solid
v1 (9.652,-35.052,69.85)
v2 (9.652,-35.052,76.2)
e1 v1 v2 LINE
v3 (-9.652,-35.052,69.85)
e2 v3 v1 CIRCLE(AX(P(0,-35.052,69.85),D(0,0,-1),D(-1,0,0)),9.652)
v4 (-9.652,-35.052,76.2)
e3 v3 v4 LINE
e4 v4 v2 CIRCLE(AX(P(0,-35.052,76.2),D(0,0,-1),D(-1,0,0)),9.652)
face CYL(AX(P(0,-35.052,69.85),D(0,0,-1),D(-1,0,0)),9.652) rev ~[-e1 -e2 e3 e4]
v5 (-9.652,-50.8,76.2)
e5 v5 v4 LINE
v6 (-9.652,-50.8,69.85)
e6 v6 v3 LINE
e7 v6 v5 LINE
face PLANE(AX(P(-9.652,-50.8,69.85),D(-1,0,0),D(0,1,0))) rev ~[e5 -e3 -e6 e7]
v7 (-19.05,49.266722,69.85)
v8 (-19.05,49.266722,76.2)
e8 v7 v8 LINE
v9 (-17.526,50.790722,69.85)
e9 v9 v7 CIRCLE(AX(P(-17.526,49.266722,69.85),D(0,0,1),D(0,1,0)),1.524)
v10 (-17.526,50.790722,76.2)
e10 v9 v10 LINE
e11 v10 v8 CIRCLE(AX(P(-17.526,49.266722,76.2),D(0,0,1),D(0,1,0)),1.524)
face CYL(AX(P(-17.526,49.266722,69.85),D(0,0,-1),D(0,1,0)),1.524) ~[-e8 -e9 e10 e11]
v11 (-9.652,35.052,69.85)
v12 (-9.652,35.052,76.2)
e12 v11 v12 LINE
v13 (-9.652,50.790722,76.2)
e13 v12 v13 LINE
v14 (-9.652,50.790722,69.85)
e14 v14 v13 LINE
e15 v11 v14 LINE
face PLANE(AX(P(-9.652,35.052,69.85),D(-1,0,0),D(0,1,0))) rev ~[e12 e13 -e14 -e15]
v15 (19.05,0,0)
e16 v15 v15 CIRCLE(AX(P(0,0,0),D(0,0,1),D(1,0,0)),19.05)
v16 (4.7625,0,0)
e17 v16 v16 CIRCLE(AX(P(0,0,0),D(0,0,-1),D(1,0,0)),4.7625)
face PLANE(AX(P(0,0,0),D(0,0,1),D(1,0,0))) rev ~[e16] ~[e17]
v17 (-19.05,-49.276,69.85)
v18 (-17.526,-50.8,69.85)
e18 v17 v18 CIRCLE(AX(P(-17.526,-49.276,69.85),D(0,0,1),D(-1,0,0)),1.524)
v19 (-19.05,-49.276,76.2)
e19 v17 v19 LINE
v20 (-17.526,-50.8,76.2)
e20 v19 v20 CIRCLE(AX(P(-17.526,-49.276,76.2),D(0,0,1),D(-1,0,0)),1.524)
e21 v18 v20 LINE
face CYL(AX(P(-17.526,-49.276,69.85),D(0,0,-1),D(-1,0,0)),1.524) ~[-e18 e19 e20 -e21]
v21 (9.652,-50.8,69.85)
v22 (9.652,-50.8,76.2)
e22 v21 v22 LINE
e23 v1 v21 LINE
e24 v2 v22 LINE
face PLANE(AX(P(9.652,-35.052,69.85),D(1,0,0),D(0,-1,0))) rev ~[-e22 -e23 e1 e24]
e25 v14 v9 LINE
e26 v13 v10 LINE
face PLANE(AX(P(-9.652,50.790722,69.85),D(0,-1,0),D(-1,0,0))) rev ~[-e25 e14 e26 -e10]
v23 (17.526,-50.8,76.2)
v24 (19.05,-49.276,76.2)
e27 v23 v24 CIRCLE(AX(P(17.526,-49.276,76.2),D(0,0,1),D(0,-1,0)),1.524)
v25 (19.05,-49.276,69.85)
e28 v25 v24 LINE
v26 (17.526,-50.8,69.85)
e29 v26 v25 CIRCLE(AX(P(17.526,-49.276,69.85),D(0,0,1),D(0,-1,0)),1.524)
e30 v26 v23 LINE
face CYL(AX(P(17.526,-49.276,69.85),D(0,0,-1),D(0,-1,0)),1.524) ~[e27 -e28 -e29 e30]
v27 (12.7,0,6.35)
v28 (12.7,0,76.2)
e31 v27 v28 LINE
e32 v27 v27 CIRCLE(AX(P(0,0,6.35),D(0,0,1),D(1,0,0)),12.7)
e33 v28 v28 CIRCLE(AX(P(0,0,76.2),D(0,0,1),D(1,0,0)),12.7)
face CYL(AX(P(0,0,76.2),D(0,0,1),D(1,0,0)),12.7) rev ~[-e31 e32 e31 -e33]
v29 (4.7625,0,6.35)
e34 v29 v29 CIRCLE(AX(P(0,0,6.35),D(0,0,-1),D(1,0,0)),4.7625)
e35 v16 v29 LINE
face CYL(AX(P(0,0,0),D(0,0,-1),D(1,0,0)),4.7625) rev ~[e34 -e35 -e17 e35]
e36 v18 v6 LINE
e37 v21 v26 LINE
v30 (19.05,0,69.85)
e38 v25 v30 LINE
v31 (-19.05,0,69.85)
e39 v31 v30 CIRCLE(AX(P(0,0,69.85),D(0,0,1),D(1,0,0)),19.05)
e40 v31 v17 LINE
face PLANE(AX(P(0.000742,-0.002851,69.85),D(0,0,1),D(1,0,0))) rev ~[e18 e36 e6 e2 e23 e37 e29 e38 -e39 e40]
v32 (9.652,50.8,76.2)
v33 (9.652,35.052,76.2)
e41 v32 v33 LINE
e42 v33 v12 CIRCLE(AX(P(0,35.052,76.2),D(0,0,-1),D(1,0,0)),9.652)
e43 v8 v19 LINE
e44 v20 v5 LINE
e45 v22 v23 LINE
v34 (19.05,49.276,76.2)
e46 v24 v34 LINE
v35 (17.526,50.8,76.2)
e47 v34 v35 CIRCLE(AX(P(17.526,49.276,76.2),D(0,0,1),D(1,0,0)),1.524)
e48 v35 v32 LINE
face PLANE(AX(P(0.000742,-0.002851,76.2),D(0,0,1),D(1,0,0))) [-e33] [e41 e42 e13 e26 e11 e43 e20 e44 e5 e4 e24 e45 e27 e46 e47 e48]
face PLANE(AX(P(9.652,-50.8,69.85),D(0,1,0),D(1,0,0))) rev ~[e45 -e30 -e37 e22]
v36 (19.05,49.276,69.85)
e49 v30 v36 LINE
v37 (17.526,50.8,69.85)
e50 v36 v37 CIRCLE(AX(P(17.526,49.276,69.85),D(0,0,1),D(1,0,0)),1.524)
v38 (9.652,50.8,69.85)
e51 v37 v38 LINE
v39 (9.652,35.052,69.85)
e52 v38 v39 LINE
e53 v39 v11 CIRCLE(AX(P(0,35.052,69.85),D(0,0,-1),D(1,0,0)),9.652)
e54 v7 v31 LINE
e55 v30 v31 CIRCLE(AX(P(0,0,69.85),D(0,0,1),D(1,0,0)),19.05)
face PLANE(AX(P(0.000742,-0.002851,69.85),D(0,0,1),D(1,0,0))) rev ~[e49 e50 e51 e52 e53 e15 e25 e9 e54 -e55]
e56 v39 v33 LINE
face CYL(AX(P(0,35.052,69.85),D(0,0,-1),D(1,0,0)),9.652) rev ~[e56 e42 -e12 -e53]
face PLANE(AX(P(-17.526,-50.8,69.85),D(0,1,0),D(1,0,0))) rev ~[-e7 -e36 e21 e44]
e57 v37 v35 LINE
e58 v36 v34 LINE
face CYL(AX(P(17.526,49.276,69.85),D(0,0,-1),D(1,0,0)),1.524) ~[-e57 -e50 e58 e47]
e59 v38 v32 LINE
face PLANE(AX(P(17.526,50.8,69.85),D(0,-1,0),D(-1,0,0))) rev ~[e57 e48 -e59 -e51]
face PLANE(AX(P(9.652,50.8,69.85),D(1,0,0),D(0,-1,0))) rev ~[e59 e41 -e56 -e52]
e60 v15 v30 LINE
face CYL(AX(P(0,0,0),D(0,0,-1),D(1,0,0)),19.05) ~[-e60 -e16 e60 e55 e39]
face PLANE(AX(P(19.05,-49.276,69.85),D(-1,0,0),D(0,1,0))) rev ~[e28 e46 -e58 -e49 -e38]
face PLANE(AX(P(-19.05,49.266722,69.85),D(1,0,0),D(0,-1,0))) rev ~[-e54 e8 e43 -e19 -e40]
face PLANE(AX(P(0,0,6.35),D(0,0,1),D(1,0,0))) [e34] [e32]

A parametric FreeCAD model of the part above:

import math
import FreeCAD as App
import Part
import Sketcher
from FreeCAD import Vector
Q = App.Units.Quantity

doc = App.newDocument("Part")
params = doc.addObject("Spreadsheet::Sheet", "Params")
for row, (alias, value) in enumerate([
    ("sketch1_diameter", "1.5 in"),
    ("pad1_length", "2.75 in"),
    ("sketch2_diameter", "1 in"),
    ("pocket1_length", "2.5 in"),
    ("sketch3_diameter", "0.375 in"),
    ("sketch4_radius", "0.06 in"),
    ("sketch4_radius2", "0.38 in"),
    ("sketch4_width", "0.31 in"),
    ("sketch4_height", "0.62 in"),
    ("pad2_length", "0.25 in"),
    ("sketch5_diameter", "1 in"),
    ("pocket3_length", "0.25 in"),
], start=1):
    params.set(f"A{row}", alias)
    params.set(f"B{row}", "=" + value)
    params.setAlias(f"B{row}", alias)

body = doc.addObject("PartDesign::Body", "Body")

sketch1 = doc.addObject("Sketcher::SketchObject", "Sketch")
body.addObject(sketch1)
sketch1.AttachmentSupport = (doc.XY_Plane, [""])
sketch1.MapMode = "FlatFace"
sketch1.addGeometry(Part.Circle(Vector(0, 0, 0), Vector(0, 0, 1), 19.05), False)
sketch1.addConstraint(Sketcher.Constraint("Coincident", 0, 3, -1, 1))
sketch1.addConstraint(Sketcher.Constraint("Diameter", 0, Q("1.5 in")))
sketch1.setExpression("Constraints[1]", "Params.sketch1_diameter")
pad1 = doc.addObject("PartDesign::Pad", "Pad")
body.addObject(pad1)
pad1.Profile = sketch1
pad1.setExpression("Length", "Params.pad1_length")

sketch2 = doc.addObject("Sketcher::SketchObject", "Sketch001")
body.addObject(sketch2)
sketch2.AttachmentSupport = (doc.XY_Plane, [""])
sketch2.MapMode = "FlatFace"
sketch2.AttachmentOffset = App.Placement(Vector(0, 0, 2.75 * 25.4), App.Rotation())
sketch2.addGeometry(Part.Circle(Vector(0, 0, 0), Vector(0, 0, 1), 12.7), False)
sketch2.addConstraint(Sketcher.Constraint("Coincident", 0, 3, -1, 1))
sketch2.addConstraint(Sketcher.Constraint("Diameter", 0, Q("1 in")))
sketch2.setExpression("Constraints[1]", "Params.sketch2_diameter")
pocket1 = doc.addObject("PartDesign::Pocket", "Pocket")
body.addObject(pocket1)
pocket1.Profile = sketch2
pocket1.setExpression("Length", "Params.pocket1_length")

sketch3 = doc.addObject("Sketcher::SketchObject", "Sketch002")
body.addObject(sketch3)
sketch3.AttachmentSupport = (doc.XY_Plane, [""])
sketch3.MapMode = "FlatFace"
sketch3.addGeometry(Part.Circle(Vector(0, 0, 0), Vector(0, 0, 1), 4.7625), False)
sketch3.addConstraint(Sketcher.Constraint("Coincident", 0, 3, -1, 1))
sketch3.addConstraint(Sketcher.Constraint("Diameter", 0, Q("0.375 in")))
sketch3.setExpression("Constraints[1]", "Params.sketch3_diameter")
pocket2 = doc.addObject("PartDesign::Pocket", "Pocket001")
body.addObject(pocket2)
pocket2.Profile = sketch3
pocket2.Type = "ThroughAll"
pocket2.Reversed = True

sketch4 = doc.addObject("Sketcher::SketchObject", "Sketch003")
body.addObject(sketch4)
sketch4.AttachmentSupport = (doc.XY_Plane, [""])
sketch4.MapMode = "FlatFace"
sketch4.AttachmentOffset = App.Placement(Vector(0, 0, 2.75 * 25.4), App.Rotation())
sketch4.addGeometry(Part.ArcOfCircle(Part.Circle(Vector(-17.526, 49.266722, 0), Vector(0, 0, 1), 1.524), math.radians(90), math.radians(180)), False)
sketch4.addGeometry(Part.LineSegment(Vector(-19.05, 49.266722, 0), Vector(-19.05, -49.276, 0)), False)
sketch4.addGeometry(Part.ArcOfCircle(Part.Circle(Vector(-17.526, -49.276, 0), Vector(0, 0, 1), 1.524), math.radians(180), math.radians(270)), False)
sketch4.addGeometry(Part.LineSegment(Vector(-17.526, -50.8, 0), Vector(-9.652, -50.8, 0)), False)
sketch4.addGeometry(Part.LineSegment(Vector(-9.652, -50.8, 0), Vector(-9.652, -35.052, 0)), False)
sketch4.addGeometry(Part.ArcOfCircle(Part.Circle(Vector(0, -35.052, 0), Vector(0, 0, 1), 9.652), math.radians(0), math.radians(180)), False)
sketch4.addGeometry(Part.LineSegment(Vector(9.652, -35.052, 0), Vector(9.652, -50.8, 0)), False)
sketch4.addGeometry(Part.LineSegment(Vector(9.652, -50.8, 0), Vector(17.526, -50.8, 0)), False)
sketch4.addGeometry(Part.ArcOfCircle(Part.Circle(Vector(17.526, -49.276, 0), Vector(0, 0, 1), 1.524), math.radians(-90), math.radians(0)), False)
sketch4.addGeometry(Part.LineSegment(Vector(19.05, -49.276, 0), Vector(19.05, 49.276, 0)), False)
sketch4.addGeometry(Part.ArcOfCircle(Part.Circle(Vector(17.526, 49.276, 0), Vector(0, 0, 1), 1.524), math.radians(0), math.radians(90)), False)
sketch4.addGeometry(Part.LineSegment(Vector(17.526, 50.8, 0), Vector(9.652, 50.8, 0)), False)
sketch4.addGeometry(Part.LineSegment(Vector(9.652, 50.8, 0), Vector(9.652, 35.052, 0)), False)
sketch4.addGeometry(Part.ArcOfCircle(Part.Circle(Vector(0, 35.052, 0), Vector(0, 0, 1), 9.652), math.radians(180), math.radians(360)), False)
sketch4.addGeometry(Part.LineSegment(Vector(-9.652, 35.052, 0), Vector(-9.652, 50.790722, 0)), False)
sketch4.addGeometry(Part.LineSegment(Vector(-9.652, 50.790722, 0), Vector(-17.526, 50.790722, 0)), False)
sketch4.addConstraint(Sketcher.Constraint("Tangent", 0, 2, 1, 1))
sketch4.addConstraint(Sketcher.Constraint("Tangent", 1, 2, 2, 1))
sketch4.addConstraint(Sketcher.Constraint("Tangent", 2, 2, 3, 1))
sketch4.addConstraint(Sketcher.Constraint("Coincident", 3, 2, 4, 1))
sketch4.addConstraint(Sketcher.Constraint("Tangent", 4, 2, 5, 2))
sketch4.addConstraint(Sketcher.Constraint("Tangent", 5, 1, 6, 1))
sketch4.addConstraint(Sketcher.Constraint("Coincident", 6, 2, 7, 1))
sketch4.addConstraint(Sketcher.Constraint("Tangent", 7, 2, 8, 1))
sketch4.addConstraint(Sketcher.Constraint("Tangent", 8, 2, 9, 1))
sketch4.addConstraint(Sketcher.Constraint("Tangent", 9, 2, 10, 1))
sketch4.addConstraint(Sketcher.Constraint("Tangent", 10, 2, 11, 1))
sketch4.addConstraint(Sketcher.Constraint("Coincident", 11, 2, 12, 1))
sketch4.addConstraint(Sketcher.Constraint("Tangent", 12, 2, 13, 2))
sketch4.addConstraint(Sketcher.Constraint("Tangent", 13, 1, 14, 1))
sketch4.addConstraint(Sketcher.Constraint("Coincident", 14, 2, 15, 1))
sketch4.addConstraint(Sketcher.Constraint("Tangent", 15, 2, 0, 1))
sketch4.addConstraint(Sketcher.Constraint("Vertical", 1))
sketch4.addConstraint(Sketcher.Constraint("Horizontal", 3))
sketch4.addConstraint(Sketcher.Constraint("Vertical", 4))
sketch4.addConstraint(Sketcher.Constraint("Vertical", 6))
sketch4.addConstraint(Sketcher.Constraint("Horizontal", 7))
sketch4.addConstraint(Sketcher.Constraint("Vertical", 9))
sketch4.addConstraint(Sketcher.Constraint("Horizontal", 11))
sketch4.addConstraint(Sketcher.Constraint("Vertical", 12))
sketch4.addConstraint(Sketcher.Constraint("Vertical", 14))
sketch4.addConstraint(Sketcher.Constraint("Horizontal", 15))
sketch4.addConstraint(Sketcher.Constraint("Equal", 0, 2))
sketch4.addConstraint(Sketcher.Constraint("Equal", 2, 8))
sketch4.addConstraint(Sketcher.Constraint("Equal", 8, 10))
sketch4.addConstraint(Sketcher.Constraint("Equal", 5, 13))
sketch4.addConstraint(Sketcher.Constraint("Symmetric", 2, 3, 10, 3, -1, 1))
sketch4.addConstraint(Sketcher.Constraint("Symmetric", 5, 3, 13, 3, -1, 1))
sketch4.addConstraint(Sketcher.Constraint("Symmetric", 3, 2, 6, 2, -2))
sketch4.addConstraint(Sketcher.Constraint("Radius", 0, Q("0.06 in")))
sketch4.addConstraint(Sketcher.Constraint("Radius", 5, Q("0.38 in")))
sketch4.addConstraint(Sketcher.Constraint("DistanceY", 2, 2, -1, 1, Q("2 in")))
sketch4.addConstraint(Sketcher.Constraint("DistanceX", 3, 1, 3, 2, Q("0.31 in")))
sketch4.addConstraint(Sketcher.Constraint("DistanceY", 4, 1, 4, 2, Q("0.62 in")))
sketch4.addConstraint(Sketcher.Constraint("DistanceY", 1, 2, 1, 1, 98.542722))
sketch4.setExpression("Constraints[33]", "Params.sketch4_radius")
sketch4.setExpression("Constraints[34]", "Params.sketch4_radius2")
sketch4.setExpression("Constraints[36]", "Params.sketch4_width")
sketch4.setExpression("Constraints[37]", "Params.sketch4_height")
pad2 = doc.addObject("PartDesign::Pad", "Pad001")
body.addObject(pad2)
pad2.Profile = sketch4
pad2.setExpression("Length", "Params.pad2_length")

sketch5 = doc.addObject("Sketcher::SketchObject", "Sketch004")
body.addObject(sketch5)
sketch5.AttachmentSupport = (doc.XY_Plane, [""])
sketch5.MapMode = "FlatFace"
sketch5.AttachmentOffset = App.Placement(Vector(0, 0, 3 * 25.4), App.Rotation())
sketch5.addGeometry(Part.Circle(Vector(0, 0, 0), Vector(0, 0, 1), 12.7), False)
sketch5.addConstraint(Sketcher.Constraint("Coincident", 0, 3, -1, 1))
sketch5.addConstraint(Sketcher.Constraint("Diameter", 0, Q("1 in")))
sketch5.setExpression("Constraints[1]", "Params.sketch5_diameter")
pocket3 = doc.addObject("PartDesign::Pocket", "Pocket002")
body.addObject(pocket3)
pocket3.Profile = sketch5
pocket3.setExpression("Length", "Params.pocket3_length")

doc.recompute()
